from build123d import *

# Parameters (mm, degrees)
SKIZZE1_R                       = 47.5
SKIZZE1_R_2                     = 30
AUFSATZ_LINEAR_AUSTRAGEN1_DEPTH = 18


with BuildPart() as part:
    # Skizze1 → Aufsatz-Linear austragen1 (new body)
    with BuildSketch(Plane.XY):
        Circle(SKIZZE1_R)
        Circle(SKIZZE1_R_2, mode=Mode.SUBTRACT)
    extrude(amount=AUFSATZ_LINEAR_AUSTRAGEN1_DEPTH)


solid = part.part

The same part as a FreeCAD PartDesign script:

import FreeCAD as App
import Part
import Sketcher

V = App.Vector

doc = App.newDocument("Part")
body = doc.addObject("PartDesign::Body", "Body")

# Sketch on XY plane
sketch1 = body.newObject("Sketcher::SketchObject", "Sketch")
sketch1.AttachmentSupport = (doc.getObject("XY_Plane"), [""])
sketch1.MapMode = "FlatFace"
sketch1.addGeometry(Part.Circle(V(0, 0, 0), V(0, 0, 1), 48), False)
sketch1.addGeometry(Part.Circle(V(0, 0, 0), V(0, 0, 1), 30), False)
sketch1.addConstraint(Sketcher.Constraint("Coincident", 0, 3, -1, 1))
sketch1.addConstraint(Sketcher.Constraint("Coincident", 1, 3, -1, 1))
sketch1.addConstraint(Sketcher.Constraint("Diameter", 0, 95.0))
sketch1.addConstraint(Sketcher.Constraint("Diameter", 1, 60.0))
pad1 = body.newObject("PartDesign::Pad", "Pad")
pad1.Profile = sketch1
pad1.Length = 18

doc.recompute()
